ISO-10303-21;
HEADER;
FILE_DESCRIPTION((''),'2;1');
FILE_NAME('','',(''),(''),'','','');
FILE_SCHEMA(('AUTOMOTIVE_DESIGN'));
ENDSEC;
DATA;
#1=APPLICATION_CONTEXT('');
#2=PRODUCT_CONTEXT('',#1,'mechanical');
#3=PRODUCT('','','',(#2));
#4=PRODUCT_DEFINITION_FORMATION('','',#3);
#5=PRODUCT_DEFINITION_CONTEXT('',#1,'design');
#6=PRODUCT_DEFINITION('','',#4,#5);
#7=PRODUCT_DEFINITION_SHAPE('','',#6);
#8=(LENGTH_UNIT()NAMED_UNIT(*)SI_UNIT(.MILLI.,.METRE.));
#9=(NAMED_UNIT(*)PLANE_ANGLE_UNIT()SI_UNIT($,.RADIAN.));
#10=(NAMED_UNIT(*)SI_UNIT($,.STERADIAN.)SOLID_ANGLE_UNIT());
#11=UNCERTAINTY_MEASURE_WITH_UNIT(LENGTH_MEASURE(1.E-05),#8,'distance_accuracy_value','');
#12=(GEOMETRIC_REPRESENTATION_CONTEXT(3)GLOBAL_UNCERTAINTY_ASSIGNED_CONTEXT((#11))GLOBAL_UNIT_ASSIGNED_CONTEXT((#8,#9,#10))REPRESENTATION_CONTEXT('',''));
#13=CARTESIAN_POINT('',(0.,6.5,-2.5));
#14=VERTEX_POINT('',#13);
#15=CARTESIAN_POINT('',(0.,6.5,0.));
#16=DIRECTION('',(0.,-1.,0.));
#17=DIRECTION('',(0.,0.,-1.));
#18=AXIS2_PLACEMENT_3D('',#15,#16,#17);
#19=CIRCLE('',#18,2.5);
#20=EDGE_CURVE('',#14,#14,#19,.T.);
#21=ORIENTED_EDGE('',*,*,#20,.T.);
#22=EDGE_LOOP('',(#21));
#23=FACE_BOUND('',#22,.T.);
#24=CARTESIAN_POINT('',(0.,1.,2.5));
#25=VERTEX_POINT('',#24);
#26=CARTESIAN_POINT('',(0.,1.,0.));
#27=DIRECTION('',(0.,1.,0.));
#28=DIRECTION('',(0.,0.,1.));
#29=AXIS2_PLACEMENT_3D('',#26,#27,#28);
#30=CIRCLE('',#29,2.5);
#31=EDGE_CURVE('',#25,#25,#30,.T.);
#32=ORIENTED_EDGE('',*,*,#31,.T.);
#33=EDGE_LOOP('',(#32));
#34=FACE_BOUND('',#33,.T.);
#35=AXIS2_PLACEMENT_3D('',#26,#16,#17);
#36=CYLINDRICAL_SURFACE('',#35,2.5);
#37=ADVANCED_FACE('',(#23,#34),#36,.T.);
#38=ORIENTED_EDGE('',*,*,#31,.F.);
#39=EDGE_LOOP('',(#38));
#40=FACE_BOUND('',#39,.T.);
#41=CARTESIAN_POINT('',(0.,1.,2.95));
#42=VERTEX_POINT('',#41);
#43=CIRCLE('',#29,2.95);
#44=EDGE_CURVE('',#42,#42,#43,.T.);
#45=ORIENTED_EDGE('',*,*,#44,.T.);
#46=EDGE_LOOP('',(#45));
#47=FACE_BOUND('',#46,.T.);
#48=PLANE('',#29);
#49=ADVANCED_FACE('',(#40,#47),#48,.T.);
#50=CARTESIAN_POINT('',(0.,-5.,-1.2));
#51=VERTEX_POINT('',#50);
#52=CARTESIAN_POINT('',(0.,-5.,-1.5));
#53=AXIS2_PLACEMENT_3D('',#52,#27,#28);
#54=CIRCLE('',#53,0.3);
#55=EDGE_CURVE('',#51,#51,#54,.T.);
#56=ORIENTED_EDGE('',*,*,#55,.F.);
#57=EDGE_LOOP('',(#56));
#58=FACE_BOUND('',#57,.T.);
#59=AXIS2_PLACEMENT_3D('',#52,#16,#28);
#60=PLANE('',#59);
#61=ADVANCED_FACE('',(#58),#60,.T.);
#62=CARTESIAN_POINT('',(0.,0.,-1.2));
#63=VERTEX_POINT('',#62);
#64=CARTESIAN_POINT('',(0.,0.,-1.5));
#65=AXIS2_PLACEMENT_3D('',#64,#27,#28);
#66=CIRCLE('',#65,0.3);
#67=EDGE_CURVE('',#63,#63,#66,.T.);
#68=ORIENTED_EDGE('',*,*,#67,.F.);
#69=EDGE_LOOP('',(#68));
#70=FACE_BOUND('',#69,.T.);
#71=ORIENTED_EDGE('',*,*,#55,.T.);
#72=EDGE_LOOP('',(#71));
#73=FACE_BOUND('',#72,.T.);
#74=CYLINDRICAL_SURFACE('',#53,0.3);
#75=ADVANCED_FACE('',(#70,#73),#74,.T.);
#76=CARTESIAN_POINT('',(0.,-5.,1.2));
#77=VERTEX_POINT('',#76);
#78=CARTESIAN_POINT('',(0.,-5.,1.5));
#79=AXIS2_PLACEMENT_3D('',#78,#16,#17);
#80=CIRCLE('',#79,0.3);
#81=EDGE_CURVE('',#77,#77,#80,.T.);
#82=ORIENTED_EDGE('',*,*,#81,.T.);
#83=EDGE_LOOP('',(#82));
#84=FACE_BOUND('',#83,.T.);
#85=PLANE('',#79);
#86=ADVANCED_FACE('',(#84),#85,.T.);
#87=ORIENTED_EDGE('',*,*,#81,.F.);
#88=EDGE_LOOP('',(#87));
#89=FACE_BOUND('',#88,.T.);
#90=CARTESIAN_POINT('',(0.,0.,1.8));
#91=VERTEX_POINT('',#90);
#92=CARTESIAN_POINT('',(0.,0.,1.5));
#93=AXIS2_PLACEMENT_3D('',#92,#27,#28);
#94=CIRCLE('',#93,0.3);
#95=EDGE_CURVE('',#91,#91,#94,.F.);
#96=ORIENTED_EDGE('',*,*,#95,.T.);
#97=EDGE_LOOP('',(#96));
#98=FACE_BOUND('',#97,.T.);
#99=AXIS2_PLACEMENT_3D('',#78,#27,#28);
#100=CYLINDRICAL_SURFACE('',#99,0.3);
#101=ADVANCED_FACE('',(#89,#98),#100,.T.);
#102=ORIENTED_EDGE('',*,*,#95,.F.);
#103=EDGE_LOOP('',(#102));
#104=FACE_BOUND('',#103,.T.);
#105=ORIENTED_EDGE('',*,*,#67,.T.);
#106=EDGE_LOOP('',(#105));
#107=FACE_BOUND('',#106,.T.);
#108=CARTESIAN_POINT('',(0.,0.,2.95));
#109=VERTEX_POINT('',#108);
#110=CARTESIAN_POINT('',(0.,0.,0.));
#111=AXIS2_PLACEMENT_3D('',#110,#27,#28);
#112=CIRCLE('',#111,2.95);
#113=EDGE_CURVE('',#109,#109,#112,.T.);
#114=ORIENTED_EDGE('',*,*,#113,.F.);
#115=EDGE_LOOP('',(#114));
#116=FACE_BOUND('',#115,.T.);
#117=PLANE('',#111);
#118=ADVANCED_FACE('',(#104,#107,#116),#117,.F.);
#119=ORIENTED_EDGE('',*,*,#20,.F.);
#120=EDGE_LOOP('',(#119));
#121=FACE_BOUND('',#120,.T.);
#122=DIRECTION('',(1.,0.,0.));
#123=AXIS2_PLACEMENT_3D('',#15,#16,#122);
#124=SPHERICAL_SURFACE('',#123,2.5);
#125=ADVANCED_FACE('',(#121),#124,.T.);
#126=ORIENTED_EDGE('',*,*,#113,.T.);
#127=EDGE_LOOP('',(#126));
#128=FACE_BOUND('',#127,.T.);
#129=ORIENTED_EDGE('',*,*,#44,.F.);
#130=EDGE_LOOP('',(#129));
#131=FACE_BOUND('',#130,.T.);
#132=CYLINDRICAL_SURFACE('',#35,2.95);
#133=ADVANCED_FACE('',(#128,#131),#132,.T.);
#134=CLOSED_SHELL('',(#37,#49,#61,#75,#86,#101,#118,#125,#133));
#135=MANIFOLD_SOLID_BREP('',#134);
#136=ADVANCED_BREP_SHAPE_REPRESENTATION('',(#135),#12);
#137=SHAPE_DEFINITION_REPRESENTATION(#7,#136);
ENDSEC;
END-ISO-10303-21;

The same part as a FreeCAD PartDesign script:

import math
import FreeCAD as App
import Part
import Sketcher
from FreeCAD import Vector

doc = App.newDocument("Part")
params = doc.addObject("Spreadsheet::Sheet", "Params")
for row, (alias, value) in enumerate([
    ("sketch1_diameter", "5.9 mm"),
    ("pad1_length", "1 mm"),
    ("sketch2_radius", "2.5 mm"),
    ("sketch2_height", "8 mm"),
    ("revolution_angle", "360 deg"),
    ("sketch3_diameter", "0.6 mm"),
    ("pad2_length", "5 mm"),
], start=1):
    params.set(f"A{row}", alias)
    params.set(f"B{row}", "=" + value)
    params.setAlias(f"B{row}", alias)

body = doc.addObject("PartDesign::Body", "Body")

# Sketch on XZ plane
sketch1 = body.newObject("Sketcher::SketchObject", "Sketch")
sketch1.AttachmentSupport = (doc.getObject("XZ_Plane"), [""])
sketch1.MapMode = "FlatFace"
sketch1.addGeometry(Part.Circle(Vector(0, 0, 0), Vector(0, 0, 1), 3), False)
sketch1.addConstraint(Sketcher.Constraint("Coincident", 0, 3, -1, 1))
sketch1.addConstraint(Sketcher.Constraint("Diameter", 0, 5.9))
sketch1.setExpression("Constraints[1]", "Params.sketch1_diameter")
pad1 = body.newObject("PartDesign::Pad", "Pad")
pad1.Profile = sketch1
pad1.setExpression("Length", "Params.pad1_length")
pad1.Reversed = True

# Sketch on XY plane
sketch2 = body.newObject("Sketcher::SketchObject", "Sketch001")
sketch2.AttachmentSupport = (doc.getObject("XY_Plane"), [""])
sketch2.MapMode = "FlatFace"
sketch2.addGeometry(Part.LineSegment(Vector(0, 1, 0), Vector(2.5, 1, 0)), False)
sketch2.addGeometry(Part.LineSegment(Vector(2.5, 1, 0), Vector(2.5, 6.5, 0)), False)
sketch2.addGeometry(Part.ArcOfCircle(Part.Circle(Vector(0, 6.5, 0), Vector(0, 0, 1), 2.5), math.radians(0), math.radians(90)), False)
sketch2.addGeometry(Part.LineSegment(Vector(0, 9, 0), Vector(0, 1, 0)), False)
sketch2.addConstraint(Sketcher.Constraint("Coincident", 0, 2, 1, 1))
sketch2.addConstraint(Sketcher.Constraint("Tangent", 1, 2, 2, 1))
sketch2.addConstraint(Sketcher.Constraint("Coincident", 2, 2, 3, 1))
sketch2.addConstraint(Sketcher.Constraint("Coincident", 3, 2, 0, 1))
sketch2.addConstraint(Sketcher.Constraint("Horizontal", 0))
sketch2.addConstraint(Sketcher.Constraint("Vertical", 1))
sketch2.addConstraint(Sketcher.Constraint("Vertical", 3))
sketch2.addConstraint(Sketcher.Constraint("PointOnObject", 2, 3, -2))
sketch2.addConstraint(Sketcher.Constraint("PointOnObject", 2, 2, -2))
sketch2.addConstraint(Sketcher.Constraint("Radius", 2, 2.5))
sketch2.addConstraint(Sketcher.Constraint("DistanceY", 3, 2, 3, 1, 8.0))
sketch2.addConstraint(Sketcher.Constraint("DistanceY", -1, 1, 0, 2, 1.0))
sketch2.setExpression("Constraints[9]", "Params.sketch2_radius")
sketch2.setExpression("Constraints[10]", "Params.sketch2_height")
revolution = body.newObject("PartDesign::Revolution", "Revolution")
revolution.Profile = sketch2
revolution.ReferenceAxis = (sketch2, ["V_Axis"])
revolution.setExpression("Angle", "Params.revolution_angle")

# Sketch on XZ plane
sketch3 = body.newObject("Sketcher::SketchObject", "Sketch002")
sketch3.AttachmentSupport = (doc.getObject("XZ_Plane"), [""])
sketch3.MapMode = "FlatFace"
sketch3.addGeometry(Part.Circle(Vector(0, 1.5, 0), Vector(0, 0, 1), 0.3), False)
sketch3.addConstraint(Sketcher.Constraint("PointOnObject", 0, 3, -2))
sketch3.addConstraint(Sketcher.Constraint("Diameter", 0, 0.6))
sketch3.addConstraint(Sketcher.Constraint("DistanceY", -1, 1, 0, 3, 1.5))
sketch3.setExpression("Constraints[1]", "Params.sketch3_diameter")
pad2 = body.newObject("PartDesign::Pad", "Pad001")
pad2.Profile = sketch3
pad2.setExpression("Length", "Params.pad2_length")
doc.recompute()

mirrored = body.newObject("PartDesign::Mirrored", "Mirrored")
mirrored.Originals = [pad2]
mirrored.MirrorPlane = (doc.getObject("XY_Plane"), [""])
body.Tip = mirrored

doc.recompute()
